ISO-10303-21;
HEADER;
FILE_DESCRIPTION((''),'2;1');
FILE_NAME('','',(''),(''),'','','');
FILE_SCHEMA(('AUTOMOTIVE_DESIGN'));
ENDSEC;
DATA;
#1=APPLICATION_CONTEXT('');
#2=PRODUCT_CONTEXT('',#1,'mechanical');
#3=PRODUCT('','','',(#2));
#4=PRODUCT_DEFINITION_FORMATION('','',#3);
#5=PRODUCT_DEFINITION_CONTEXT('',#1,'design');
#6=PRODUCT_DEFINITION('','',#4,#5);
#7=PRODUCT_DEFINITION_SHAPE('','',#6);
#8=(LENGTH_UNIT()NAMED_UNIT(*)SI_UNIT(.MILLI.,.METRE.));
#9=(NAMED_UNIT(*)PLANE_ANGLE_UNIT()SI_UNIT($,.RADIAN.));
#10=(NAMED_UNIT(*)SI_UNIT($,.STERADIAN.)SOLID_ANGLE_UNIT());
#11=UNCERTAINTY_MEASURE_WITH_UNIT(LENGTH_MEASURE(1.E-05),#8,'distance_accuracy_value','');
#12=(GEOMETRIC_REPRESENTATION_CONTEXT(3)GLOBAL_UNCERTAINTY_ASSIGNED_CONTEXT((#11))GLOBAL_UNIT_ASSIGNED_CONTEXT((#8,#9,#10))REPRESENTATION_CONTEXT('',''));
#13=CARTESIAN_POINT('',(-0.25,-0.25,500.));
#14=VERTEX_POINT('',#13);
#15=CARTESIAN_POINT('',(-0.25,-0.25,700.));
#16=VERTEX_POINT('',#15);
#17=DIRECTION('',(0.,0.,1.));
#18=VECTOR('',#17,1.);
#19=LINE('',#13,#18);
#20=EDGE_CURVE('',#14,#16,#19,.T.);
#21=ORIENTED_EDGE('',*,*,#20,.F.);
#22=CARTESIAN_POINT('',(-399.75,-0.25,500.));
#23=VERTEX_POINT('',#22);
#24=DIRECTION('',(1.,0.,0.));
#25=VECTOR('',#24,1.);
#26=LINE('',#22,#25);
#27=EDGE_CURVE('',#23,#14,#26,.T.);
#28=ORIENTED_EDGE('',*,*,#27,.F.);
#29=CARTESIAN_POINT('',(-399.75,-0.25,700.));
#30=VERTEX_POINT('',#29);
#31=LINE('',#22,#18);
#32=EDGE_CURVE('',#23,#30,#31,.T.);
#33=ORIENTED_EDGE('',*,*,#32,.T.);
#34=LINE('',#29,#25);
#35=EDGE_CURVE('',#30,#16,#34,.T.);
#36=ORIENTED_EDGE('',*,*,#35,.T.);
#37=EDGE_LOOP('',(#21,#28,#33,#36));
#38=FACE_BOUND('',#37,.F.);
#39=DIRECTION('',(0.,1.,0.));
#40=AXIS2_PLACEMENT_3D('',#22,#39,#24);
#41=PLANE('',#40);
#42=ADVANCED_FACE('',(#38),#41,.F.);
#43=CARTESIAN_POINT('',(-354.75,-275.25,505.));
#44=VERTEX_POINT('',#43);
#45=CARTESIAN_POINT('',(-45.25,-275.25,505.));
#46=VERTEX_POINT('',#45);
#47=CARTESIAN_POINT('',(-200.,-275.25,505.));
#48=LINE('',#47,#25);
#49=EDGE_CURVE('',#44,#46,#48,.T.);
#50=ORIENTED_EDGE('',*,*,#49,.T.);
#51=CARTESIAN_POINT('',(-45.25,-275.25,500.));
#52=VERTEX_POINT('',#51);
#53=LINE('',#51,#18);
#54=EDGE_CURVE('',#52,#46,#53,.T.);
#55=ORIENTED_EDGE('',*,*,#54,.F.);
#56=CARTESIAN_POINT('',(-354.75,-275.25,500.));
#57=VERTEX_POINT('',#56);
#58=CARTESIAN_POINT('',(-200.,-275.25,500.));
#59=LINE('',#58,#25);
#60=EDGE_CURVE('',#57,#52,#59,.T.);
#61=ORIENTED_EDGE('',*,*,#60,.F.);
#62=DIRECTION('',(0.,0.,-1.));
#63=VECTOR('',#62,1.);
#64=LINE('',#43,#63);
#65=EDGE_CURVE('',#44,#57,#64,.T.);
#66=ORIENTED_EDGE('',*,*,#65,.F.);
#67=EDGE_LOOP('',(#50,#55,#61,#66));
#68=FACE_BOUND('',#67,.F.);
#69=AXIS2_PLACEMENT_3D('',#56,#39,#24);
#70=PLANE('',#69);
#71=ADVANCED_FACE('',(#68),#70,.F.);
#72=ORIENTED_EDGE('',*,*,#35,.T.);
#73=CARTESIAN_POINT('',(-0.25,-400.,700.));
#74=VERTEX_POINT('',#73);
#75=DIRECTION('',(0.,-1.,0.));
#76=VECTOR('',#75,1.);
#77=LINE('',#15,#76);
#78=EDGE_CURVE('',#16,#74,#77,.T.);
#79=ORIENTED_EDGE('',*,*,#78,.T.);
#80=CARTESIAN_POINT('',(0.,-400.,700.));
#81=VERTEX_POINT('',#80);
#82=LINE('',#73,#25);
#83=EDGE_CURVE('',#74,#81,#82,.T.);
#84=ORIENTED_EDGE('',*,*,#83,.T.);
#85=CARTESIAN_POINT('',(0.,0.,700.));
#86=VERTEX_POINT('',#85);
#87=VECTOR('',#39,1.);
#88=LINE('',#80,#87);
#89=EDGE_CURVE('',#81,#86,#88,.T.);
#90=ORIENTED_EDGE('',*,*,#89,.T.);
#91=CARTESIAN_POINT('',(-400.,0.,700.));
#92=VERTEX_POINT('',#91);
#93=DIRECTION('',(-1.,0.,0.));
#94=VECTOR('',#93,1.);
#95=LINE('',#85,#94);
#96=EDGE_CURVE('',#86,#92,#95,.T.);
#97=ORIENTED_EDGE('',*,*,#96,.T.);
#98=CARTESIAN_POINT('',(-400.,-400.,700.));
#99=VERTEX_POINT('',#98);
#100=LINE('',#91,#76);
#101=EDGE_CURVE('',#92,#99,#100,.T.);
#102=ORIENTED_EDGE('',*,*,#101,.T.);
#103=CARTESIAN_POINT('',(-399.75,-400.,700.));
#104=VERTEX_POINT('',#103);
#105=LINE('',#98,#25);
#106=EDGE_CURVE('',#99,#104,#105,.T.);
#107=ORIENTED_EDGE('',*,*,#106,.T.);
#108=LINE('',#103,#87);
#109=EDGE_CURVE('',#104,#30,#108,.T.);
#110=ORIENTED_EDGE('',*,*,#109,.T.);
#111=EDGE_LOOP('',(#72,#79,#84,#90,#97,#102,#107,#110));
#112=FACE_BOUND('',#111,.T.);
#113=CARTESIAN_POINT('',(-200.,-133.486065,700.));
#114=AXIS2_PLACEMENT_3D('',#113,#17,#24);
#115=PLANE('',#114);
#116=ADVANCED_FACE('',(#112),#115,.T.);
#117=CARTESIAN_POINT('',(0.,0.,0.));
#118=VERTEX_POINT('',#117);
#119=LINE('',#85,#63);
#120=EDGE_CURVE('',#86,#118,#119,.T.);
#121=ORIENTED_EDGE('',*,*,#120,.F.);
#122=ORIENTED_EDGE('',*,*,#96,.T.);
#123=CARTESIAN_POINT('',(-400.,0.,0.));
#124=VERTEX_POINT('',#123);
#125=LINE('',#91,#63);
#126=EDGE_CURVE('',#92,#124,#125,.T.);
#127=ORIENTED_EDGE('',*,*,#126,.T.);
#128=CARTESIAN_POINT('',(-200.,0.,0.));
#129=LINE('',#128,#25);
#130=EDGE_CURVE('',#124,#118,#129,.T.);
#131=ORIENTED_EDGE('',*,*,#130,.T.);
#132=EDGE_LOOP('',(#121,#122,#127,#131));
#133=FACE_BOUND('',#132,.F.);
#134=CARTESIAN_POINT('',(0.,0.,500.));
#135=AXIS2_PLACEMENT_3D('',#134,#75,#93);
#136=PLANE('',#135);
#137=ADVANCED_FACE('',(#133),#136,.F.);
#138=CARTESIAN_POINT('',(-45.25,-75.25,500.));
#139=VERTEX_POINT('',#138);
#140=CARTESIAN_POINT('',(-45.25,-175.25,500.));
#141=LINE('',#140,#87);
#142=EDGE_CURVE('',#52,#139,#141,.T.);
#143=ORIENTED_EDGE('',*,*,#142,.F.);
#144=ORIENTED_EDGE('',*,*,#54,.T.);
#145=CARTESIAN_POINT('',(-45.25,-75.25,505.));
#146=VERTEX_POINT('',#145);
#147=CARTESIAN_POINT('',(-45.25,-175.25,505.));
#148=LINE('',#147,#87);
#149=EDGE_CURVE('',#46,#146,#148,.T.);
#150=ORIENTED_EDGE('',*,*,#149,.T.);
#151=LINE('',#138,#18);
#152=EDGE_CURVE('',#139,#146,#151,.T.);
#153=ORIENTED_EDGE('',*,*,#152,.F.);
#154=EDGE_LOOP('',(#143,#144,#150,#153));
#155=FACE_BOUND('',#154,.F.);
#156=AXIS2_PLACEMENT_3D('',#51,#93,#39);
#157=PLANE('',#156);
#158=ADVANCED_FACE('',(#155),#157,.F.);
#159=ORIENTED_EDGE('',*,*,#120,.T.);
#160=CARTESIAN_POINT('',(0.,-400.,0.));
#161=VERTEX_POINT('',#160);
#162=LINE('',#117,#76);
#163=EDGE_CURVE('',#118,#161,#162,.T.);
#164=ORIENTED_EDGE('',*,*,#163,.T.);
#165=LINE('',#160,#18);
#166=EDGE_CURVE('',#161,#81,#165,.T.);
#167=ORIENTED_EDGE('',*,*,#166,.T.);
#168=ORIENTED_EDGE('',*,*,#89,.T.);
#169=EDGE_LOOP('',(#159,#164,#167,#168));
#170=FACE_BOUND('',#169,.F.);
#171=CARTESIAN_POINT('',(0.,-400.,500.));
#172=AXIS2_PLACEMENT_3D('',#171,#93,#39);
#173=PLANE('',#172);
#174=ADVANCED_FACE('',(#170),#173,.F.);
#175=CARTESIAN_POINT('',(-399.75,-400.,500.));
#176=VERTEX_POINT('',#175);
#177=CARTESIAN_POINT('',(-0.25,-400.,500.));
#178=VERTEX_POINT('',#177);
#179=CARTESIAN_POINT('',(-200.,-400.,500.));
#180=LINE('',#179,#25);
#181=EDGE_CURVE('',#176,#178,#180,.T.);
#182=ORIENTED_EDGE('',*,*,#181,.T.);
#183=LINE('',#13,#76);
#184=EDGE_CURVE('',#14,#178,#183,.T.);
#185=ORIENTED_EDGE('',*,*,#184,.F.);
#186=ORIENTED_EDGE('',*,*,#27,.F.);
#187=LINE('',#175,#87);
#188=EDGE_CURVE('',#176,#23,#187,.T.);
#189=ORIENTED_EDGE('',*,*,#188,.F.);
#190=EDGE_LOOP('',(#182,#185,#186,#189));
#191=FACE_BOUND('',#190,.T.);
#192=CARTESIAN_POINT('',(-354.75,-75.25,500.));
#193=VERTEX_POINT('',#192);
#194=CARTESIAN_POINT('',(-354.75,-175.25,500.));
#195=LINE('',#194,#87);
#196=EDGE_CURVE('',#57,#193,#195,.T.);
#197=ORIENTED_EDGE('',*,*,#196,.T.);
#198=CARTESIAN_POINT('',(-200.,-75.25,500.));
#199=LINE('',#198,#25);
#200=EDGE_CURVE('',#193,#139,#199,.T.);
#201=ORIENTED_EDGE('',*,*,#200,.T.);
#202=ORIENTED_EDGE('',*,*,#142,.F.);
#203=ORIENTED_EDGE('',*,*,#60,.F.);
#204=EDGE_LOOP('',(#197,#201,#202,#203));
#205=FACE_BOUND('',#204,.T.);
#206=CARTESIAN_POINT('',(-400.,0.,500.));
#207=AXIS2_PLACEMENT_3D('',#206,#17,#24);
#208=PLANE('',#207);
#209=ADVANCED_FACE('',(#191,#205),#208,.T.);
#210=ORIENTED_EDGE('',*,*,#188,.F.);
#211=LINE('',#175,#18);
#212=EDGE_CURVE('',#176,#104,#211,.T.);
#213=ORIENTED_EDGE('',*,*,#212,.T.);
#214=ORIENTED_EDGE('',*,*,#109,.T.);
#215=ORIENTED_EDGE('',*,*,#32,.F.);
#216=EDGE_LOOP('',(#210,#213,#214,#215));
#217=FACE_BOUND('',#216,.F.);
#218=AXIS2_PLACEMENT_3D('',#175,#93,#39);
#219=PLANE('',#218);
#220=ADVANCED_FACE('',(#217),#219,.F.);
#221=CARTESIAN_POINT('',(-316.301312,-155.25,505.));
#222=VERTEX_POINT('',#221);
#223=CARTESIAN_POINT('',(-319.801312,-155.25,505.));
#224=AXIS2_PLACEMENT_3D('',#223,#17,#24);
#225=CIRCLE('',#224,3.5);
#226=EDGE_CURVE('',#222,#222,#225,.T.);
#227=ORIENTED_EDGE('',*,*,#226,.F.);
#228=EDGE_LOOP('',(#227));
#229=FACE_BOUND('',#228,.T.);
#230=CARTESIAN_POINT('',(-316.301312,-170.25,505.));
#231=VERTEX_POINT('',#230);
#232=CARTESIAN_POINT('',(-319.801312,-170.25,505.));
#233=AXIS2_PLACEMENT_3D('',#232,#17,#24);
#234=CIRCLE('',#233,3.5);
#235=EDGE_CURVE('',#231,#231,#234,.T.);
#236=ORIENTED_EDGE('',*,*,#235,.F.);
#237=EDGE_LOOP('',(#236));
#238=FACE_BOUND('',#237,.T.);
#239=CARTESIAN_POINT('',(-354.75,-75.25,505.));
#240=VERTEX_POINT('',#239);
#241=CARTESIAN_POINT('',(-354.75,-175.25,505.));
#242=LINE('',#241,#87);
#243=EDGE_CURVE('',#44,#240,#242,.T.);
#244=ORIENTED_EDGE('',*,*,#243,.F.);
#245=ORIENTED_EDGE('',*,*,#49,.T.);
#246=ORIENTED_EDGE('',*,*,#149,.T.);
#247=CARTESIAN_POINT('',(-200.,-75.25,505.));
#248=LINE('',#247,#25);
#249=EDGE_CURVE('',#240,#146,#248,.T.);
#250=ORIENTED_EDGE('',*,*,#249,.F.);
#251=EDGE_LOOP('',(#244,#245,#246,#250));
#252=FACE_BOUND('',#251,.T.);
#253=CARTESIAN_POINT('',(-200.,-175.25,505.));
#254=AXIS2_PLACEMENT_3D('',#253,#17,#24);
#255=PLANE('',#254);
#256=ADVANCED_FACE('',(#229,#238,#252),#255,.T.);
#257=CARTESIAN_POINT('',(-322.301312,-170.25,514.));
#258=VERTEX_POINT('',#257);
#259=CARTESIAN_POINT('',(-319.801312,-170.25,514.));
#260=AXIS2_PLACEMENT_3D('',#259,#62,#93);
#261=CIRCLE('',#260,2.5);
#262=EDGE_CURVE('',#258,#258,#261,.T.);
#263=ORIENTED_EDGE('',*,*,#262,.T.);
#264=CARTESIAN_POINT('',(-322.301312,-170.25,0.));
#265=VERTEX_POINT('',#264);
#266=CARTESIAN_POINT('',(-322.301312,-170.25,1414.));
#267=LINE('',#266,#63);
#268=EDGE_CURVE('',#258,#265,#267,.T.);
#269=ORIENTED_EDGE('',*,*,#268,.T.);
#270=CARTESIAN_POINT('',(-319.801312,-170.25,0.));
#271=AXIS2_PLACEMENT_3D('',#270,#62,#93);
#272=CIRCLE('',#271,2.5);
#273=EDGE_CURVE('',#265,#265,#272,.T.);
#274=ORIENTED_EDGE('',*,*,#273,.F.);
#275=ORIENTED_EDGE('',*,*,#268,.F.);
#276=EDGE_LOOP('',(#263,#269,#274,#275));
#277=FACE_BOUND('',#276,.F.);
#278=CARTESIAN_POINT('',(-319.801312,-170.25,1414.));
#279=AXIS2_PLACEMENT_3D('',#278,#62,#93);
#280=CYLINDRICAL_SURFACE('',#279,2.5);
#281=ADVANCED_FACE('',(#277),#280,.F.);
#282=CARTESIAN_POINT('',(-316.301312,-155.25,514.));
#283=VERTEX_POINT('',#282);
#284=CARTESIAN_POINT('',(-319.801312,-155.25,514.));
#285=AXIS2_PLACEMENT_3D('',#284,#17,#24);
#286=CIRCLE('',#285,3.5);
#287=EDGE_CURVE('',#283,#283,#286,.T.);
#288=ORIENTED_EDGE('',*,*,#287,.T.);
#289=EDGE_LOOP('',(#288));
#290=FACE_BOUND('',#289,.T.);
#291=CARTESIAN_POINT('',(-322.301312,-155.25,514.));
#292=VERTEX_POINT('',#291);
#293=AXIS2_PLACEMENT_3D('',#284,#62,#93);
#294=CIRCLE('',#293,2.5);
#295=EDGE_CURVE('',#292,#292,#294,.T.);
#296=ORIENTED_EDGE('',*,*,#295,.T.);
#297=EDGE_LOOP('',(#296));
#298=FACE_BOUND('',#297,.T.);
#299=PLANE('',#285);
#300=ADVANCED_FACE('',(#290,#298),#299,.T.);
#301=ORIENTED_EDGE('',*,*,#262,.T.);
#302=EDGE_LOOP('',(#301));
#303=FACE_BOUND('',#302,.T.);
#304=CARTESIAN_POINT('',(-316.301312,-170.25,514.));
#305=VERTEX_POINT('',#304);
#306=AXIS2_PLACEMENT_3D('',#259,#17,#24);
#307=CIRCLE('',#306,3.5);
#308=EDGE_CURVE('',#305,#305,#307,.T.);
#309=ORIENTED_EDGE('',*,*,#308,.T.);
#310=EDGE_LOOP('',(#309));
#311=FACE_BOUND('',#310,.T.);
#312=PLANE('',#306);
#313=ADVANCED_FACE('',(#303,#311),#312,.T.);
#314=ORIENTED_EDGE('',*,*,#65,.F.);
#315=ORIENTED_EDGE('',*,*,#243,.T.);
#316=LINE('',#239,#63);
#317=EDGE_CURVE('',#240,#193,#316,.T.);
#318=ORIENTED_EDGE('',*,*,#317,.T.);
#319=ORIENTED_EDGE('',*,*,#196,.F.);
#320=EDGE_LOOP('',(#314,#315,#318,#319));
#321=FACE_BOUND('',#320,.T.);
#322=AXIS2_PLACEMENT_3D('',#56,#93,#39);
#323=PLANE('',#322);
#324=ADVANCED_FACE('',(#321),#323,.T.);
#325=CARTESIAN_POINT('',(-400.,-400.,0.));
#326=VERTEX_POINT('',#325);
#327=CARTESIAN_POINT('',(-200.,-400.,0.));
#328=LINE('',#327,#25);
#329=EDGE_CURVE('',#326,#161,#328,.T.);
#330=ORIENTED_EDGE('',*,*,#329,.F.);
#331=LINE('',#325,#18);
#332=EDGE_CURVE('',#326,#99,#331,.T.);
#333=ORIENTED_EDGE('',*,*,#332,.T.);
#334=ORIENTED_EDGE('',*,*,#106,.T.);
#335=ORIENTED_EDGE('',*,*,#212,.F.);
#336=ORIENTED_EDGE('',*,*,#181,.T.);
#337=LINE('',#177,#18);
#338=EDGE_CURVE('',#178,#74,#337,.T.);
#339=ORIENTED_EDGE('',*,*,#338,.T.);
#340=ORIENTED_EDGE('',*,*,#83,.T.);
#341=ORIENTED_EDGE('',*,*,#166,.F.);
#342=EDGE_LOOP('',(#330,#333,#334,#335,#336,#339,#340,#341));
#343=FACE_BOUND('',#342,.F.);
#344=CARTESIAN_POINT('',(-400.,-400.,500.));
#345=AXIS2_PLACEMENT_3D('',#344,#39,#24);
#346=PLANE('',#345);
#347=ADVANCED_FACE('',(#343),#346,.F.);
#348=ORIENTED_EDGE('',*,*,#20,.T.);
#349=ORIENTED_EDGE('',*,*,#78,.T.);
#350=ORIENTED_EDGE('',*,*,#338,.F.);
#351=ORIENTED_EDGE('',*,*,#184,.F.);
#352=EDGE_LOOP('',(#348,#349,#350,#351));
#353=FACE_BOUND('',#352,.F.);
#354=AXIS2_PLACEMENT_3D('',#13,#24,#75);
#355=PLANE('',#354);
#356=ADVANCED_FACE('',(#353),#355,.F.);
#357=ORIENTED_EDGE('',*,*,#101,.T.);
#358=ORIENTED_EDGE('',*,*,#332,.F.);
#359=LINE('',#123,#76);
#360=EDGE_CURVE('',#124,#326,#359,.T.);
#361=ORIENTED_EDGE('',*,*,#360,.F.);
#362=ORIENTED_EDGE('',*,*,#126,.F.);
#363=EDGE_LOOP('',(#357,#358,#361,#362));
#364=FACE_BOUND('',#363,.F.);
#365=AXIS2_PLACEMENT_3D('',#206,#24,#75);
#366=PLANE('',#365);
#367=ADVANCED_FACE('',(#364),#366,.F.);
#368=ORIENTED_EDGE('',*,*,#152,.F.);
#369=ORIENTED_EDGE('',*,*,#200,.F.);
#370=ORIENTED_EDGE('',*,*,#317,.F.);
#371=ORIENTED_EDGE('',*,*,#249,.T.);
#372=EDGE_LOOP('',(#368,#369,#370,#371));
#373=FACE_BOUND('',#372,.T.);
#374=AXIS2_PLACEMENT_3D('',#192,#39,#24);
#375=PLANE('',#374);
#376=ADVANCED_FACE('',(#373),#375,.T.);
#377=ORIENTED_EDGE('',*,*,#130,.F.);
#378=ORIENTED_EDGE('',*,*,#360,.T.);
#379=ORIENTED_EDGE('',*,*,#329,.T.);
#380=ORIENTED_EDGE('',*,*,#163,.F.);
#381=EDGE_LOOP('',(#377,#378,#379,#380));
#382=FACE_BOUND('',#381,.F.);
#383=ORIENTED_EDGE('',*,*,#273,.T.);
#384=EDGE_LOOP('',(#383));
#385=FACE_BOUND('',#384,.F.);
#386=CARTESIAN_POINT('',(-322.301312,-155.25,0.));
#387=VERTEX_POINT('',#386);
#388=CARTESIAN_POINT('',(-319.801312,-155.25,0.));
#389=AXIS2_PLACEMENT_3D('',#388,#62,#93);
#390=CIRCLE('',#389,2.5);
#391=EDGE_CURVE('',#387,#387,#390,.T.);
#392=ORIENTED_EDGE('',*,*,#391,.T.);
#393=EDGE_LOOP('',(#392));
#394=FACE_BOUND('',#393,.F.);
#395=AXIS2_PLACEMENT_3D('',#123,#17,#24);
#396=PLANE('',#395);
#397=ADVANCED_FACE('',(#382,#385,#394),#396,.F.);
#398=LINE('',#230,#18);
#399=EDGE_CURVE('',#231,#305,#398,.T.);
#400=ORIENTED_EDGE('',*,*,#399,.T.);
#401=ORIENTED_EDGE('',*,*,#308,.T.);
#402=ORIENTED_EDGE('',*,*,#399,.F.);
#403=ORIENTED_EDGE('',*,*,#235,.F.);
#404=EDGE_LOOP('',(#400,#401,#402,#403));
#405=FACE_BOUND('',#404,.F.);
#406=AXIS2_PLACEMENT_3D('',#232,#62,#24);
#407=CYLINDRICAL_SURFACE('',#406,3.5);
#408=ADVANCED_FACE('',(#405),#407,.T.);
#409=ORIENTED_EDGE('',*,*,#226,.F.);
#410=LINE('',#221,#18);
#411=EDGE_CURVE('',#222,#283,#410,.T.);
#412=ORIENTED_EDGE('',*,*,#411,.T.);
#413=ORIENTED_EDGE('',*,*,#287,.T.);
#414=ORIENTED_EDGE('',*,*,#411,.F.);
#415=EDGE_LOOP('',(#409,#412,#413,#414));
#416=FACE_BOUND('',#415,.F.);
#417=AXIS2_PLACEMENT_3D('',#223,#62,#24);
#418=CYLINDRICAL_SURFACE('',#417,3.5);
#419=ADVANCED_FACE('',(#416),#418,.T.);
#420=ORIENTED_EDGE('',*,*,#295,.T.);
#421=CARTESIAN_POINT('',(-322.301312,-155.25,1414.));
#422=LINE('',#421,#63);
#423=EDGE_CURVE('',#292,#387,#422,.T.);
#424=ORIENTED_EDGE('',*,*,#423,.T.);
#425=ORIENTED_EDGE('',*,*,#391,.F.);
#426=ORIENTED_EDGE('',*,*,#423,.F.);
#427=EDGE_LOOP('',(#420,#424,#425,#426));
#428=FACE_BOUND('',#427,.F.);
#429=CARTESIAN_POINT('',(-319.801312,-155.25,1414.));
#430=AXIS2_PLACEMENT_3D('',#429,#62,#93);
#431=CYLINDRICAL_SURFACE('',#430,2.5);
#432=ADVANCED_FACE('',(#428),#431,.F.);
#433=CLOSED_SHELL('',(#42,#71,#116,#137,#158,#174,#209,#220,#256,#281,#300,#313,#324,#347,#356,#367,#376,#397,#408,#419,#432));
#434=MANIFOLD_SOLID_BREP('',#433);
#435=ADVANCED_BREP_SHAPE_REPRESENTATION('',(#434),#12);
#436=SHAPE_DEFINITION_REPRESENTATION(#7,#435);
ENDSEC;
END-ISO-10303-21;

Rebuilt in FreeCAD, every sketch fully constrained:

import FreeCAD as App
import Part
import Sketcher
Q = App.Units.Quantity


def add_polygon(sketch, points):
    """Adds a closed chain of lines whose ends are joined by coincident constraints."""
    first, n = sketch.GeometryCount, len(points)
    for a, b in zip(points, points[1:] + points[:1]):
        sketch.addGeometry(Part.LineSegment(App.Vector(*a, 0), App.Vector(*b, 0)), False)
    for i in range(n):
        sketch.addConstraint(Sketcher.Constraint("Coincident", first + i, 2, first + (i + 1) % n, 1))

doc = App.newDocument("Part")
body = doc.addObject("PartDesign::Body", "Body")

sketch1 = doc.addObject("Sketcher::SketchObject", "Sketch")
body.addObject(sketch1)
sketch1.AttachmentSupport = (doc.XZ_Plane, [""])
sketch1.MapMode = "FlatFace"
add_polygon(sketch1, [(-400, 500), (-400, 0), (0, 0), (0, 500)])
sketch1.addConstraint([
    Sketcher.Constraint("Vertical", 0),
    Sketcher.Constraint("Horizontal", 1),
    Sketcher.Constraint("Vertical", 2),
    Sketcher.Constraint("Horizontal", 3),
    Sketcher.Constraint("Coincident", 1, 2, -1, 1),
    Sketcher.Constraint("DistanceX", 1, 1, 1, 2, Q("400 mm")),
    Sketcher.Constraint("DistanceY", 0, 2, 0, 1, Q("500 mm")),
])
pad1 = doc.addObject("PartDesign::Pad", "Pad")
body.addObject(pad1)
pad1.Profile = sketch1
pad1.Length = 400

sketch2 = doc.addObject("Sketcher::SketchObject", "Sketch001")
body.addObject(sketch2)
sketch2.AttachmentSupport = (doc.XY_Plane, [""])
sketch2.MapMode = "FlatFace"
sketch2.AttachmentOffset = App.Placement(App.Vector(0, 0, 500), App.Rotation())
add_polygon(sketch2, [(-400, 0), (-400, -400), (-399.75, -400), (-399.75, -0.25), (-0.25, -0.25), (-0.25, -400), (0, -400), (0, 0)])
sketch2.addConstraint([
    Sketcher.Constraint("Vertical", 0),
    Sketcher.Constraint("Horizontal", 1),
    Sketcher.Constraint("Vertical", 2),
    Sketcher.Constraint("Horizontal", 3),
    Sketcher.Constraint("Vertical", 4),
    Sketcher.Constraint("Horizontal", 5),
    Sketcher.Constraint("Vertical", 6),
    Sketcher.Constraint("Horizontal", 7),
    Sketcher.Constraint("Coincident", 6, 2, -1, 1),
    Sketcher.Constraint("Horizontal", 1, 2, 4, 2),
    Sketcher.Constraint("Equal", 1, 5),
    Sketcher.Constraint("Equal", 7, 0),
    Sketcher.Constraint("DistanceX", 7, 2, 7, 1, Q("400 mm")),
    Sketcher.Constraint("DistanceX", 3, 1, 3, 2, Q("399.5 mm")),
    Sketcher.Constraint("DistanceY", 2, 1, 2, 2, Q("399.75 mm")),
])
pad2 = doc.addObject("PartDesign::Pad", "Pad001")
body.addObject(pad2)
pad2.Profile = sketch2
pad2.Length = 200

sketch3 = doc.addObject("Sketcher::SketchObject", "Sketch002")
body.addObject(sketch3)
sketch3.AttachmentSupport = (doc.XY_Plane, [""])
sketch3.MapMode = "FlatFace"
sketch3.AttachmentOffset = App.Placement(App.Vector(0, 0, 500), App.Rotation())
add_polygon(sketch3, [(-355, -75), (-355, -275), (-45, -275), (-45, -75)])
sketch3.addConstraint([
    Sketcher.Constraint("Vertical", 0),
    Sketcher.Constraint("Horizontal", 1),
    Sketcher.Constraint("Vertical", 2),
    Sketcher.Constraint("Horizontal", 3),
    Sketcher.Constraint("DistanceY", 0, 2, 0, 1, Q("200 mm")),
    Sketcher.Constraint("DistanceX", 1, 1, 1, 2, Q("309.5 mm")),
    Sketcher.Constraint("DistanceX", 0, 2, -1, 1, Q("354.75 mm")),
    Sketcher.Constraint("DistanceY", 0, 2, -1, 1, Q("275.25 mm")),
])
pad3 = doc.addObject("PartDesign::Pad", "Pad002")
body.addObject(pad3)
pad3.Profile = sketch3
pad3.Length = 1

sketch4 = doc.addObject("Sketcher::SketchObject", "Sketch003")
body.addObject(sketch4)
sketch4.AttachmentSupport = (doc.XY_Plane, [""])
sketch4.MapMode = "FlatFace"
sketch4.AttachmentOffset = App.Placement(App.Vector(0, 0, 500), App.Rotation())
add_polygon(sketch4, [(-355, -75), (-355, -275), (-45, -275), (-45, -75)])
sketch4.addConstraint([
    Sketcher.Constraint("Vertical", 0),
    Sketcher.Constraint("Horizontal", 1),
    Sketcher.Constraint("Vertical", 2),
    Sketcher.Constraint("Horizontal", 3),
    Sketcher.Constraint("DistanceY", 0, 2, 0, 1, Q("200 mm")),
    Sketcher.Constraint("DistanceX", 1, 1, 1, 2, Q("309.5 mm")),
    Sketcher.Constraint("DistanceX", 0, 2, -1, 1, Q("354.75 mm")),
    Sketcher.Constraint("DistanceY", 0, 2, -1, 1, Q("275.25 mm")),
])
pad4 = doc.addObject("PartDesign::Pad", "Pad003")
body.addObject(pad4)
pad4.Profile = sketch4
pad4.Length = 5

sketch5 = doc.addObject("Sketcher::SketchObject", "Sketch004")
body.addObject(sketch5)
sketch5.AttachmentSupport = (doc.XY_Plane, [""])
sketch5.MapMode = "FlatFace"
sketch5.AttachmentOffset = App.Placement(App.Vector(0, 0, 505), App.Rotation())
sketch5.addGeometry([
    Part.Circle(App.Vector(-319.8, -155.2, 0), App.Vector(0, 0, 1), 3.5),
    Part.Circle(App.Vector(-319.8, -170.2, 0), App.Vector(0, 0, 1), 3.5),
], False)
sketch5.addConstraint([
    Sketcher.Constraint("Equal", 0, 1),
    Sketcher.Constraint("Vertical", 0, 3, 1, 3),
    Sketcher.Constraint("Diameter", 0, Q("7 mm")),
    Sketcher.Constraint("DistanceY", 1, 3, 0, 3, Q("15 mm")),
    Sketcher.Constraint("DistanceY", 0, 3, -1, 1, Q("155.25 mm")),
    Sketcher.Constraint("DistanceX", 0, 3, -1, 1, Q("319.801312 mm")),
])
pad5 = doc.addObject("PartDesign::Pad", "Pad004")
body.addObject(pad5)
pad5.Profile = sketch5
pad5.Length = 9

sketch6 = doc.addObject("Sketcher::SketchObject", "Sketch005")
body.addObject(sketch6)
sketch6.AttachmentSupport = (doc.XY_Plane, [""])
sketch6.MapMode = "FlatFace"
sketch6.AttachmentOffset = App.Placement(App.Vector(0, 0, 514), App.Rotation())
sketch6.addGeometry(Part.Circle(App.Vector(-319.8, -155.2, 0), App.Vector(0, 0, 1), 2.5), False)
sketch6.addConstraint([
    Sketcher.Constraint("Diameter", 0, Q("5 mm")),
    Sketcher.Constraint("DistanceY", 0, 3, -1, 1, Q("155.25 mm")),
    Sketcher.Constraint("DistanceX", 0, 3, -1, 1, Q("319.801312 mm")),
])
doc.recompute()
hole = doc.addObject("PartDesign::Hole", "Hole")
body.addObject(hole)
hole.Profile = sketch6
hole.ThreadType = "None"
hole.Diameter = 5
hole.DepthType = "ThroughAll"

sketch7 = doc.addObject("Sketcher::SketchObject", "Sketch006")
body.addObject(sketch7)
sketch7.AttachmentSupport = (doc.XY_Plane, [""])
sketch7.MapMode = "FlatFace"
sketch7.AttachmentOffset = App.Placement(App.Vector(0, 0, 514), App.Rotation())
sketch7.addGeometry(Part.Circle(App.Vector(-319.8, -170.2, 0), App.Vector(0, 0, 1), 2.5), False)
sketch7.addConstraint([
    Sketcher.Constraint("Diameter", 0, Q("5 mm")),
    Sketcher.Constraint("DistanceY", 0, 3, -1, 1, Q("170.25 mm")),
    Sketcher.Constraint("DistanceX", 0, 3, -1, 1, Q("319.801312 mm")),
])
doc.recompute()
hole2 = doc.addObject("PartDesign::Hole", "Hole001")
body.addObject(hole2)
hole2.Profile = sketch7
hole2.ThreadType = "None"
hole2.Diameter = 5
hole2.DepthType = "ThroughAll"

doc.recompute()
